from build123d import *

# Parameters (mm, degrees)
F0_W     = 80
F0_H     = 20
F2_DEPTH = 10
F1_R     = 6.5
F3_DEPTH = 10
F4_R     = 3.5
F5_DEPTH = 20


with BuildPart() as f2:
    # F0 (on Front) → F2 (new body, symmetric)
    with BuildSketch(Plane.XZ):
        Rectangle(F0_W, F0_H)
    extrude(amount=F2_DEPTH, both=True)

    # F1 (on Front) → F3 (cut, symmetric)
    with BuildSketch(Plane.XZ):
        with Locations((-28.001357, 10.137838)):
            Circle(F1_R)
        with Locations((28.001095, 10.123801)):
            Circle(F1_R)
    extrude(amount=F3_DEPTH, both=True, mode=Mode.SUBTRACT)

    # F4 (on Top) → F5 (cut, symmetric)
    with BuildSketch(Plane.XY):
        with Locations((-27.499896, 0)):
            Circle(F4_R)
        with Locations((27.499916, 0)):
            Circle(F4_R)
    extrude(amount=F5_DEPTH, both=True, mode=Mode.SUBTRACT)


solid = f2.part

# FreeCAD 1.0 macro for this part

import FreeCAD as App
import Part
import Sketcher


def add_polygon(sketch, points):
    """Adds a closed chain of lines whose ends are joined by coincident constraints."""
    first, n = sketch.GeometryCount, len(points)
    for a, b in zip(points, points[1:] + points[:1]):
        sketch.addGeometry(Part.LineSegment(App.Vector(*a, 0), App.Vector(*b, 0)), False)
    for i in range(n):
        sketch.addConstraint(Sketcher.Constraint("Coincident", first + i, 2, first + (i + 1) % n, 1))

doc = App.newDocument("Part")
params = doc.addObject("Spreadsheet::Sheet", "Params")
for row, (alias, value) in enumerate([
    ("sketch1_width", "80 mm"),
    ("sketch1_height", "20 mm"),
    ("pad1_length", "20 mm"),
    ("sketch2_diameter", "13 mm"),
    ("pocket1_length", "20 mm"),
    ("sketch3_diameter", "7 mm"),
    ("pocket2_length", "40 mm"),
], start=1):
    params.set(f"A{row}", alias)
    params.set(f"B{row}", "=" + value)
    params.setAlias(f"B{row}", alias)

body = doc.addObject("PartDesign::Body", "Body")

# Sketch on XZ plane
sketch1 = doc.addObject("Sketcher::SketchObject", "Sketch")
body.addObject(sketch1)
sketch1.AttachmentSupport = (doc.XZ_Plane, [""])
sketch1.MapMode = "FlatFace"
add_polygon(sketch1, [(-40, 10), (-40, -10), (40, -10), (40, 10)])  # lines 0-3
sketch1.addConstraint([
    Sketcher.Constraint("Vertical", 0),
    Sketcher.Constraint("Horizontal", 1),
    Sketcher.Constraint("Vertical", 2),
    Sketcher.Constraint("Horizontal", 3),
    Sketcher.Constraint("Symmetric", 0, 2, 2, 2, -1, 1),
    Sketcher.Constraint("DistanceX", 1, 1, 1, 2, 80.0),
    Sketcher.Constraint("DistanceY", 0, 2, 0, 1, 20.0),
])
sketch1.setExpression("Constraints[9]", "Params.sketch1_width")
sketch1.setExpression("Constraints[10]", "Params.sketch1_height")
pad1 = doc.addObject("PartDesign::Pad", "Pad")
body.addObject(pad1)
pad1.Profile = sketch1
pad1.setExpression("Length", "Params.pad1_length")
pad1.Midplane = True

# Sketch on XZ plane
sketch2 = doc.addObject("Sketcher::SketchObject", "Sketch001")
body.addObject(sketch2)
sketch2.AttachmentSupport = (doc.XZ_Plane, [""])
sketch2.MapMode = "FlatFace"
sketch2.addGeometry([
    Part.Circle(App.Vector(-28, 10, 0), App.Vector(0, 0, 1), 6),
    Part.Circle(App.Vector(28, 10, 0), App.Vector(0, 0, 1), 6),
], False)
sketch2.addConstraint([
    Sketcher.Constraint("Equal", 0, 1),
    Sketcher.Constraint("Diameter", 0, 13.0),
    Sketcher.Constraint("DistanceY", -1, 1, 1, 3, 10.123801),
    Sketcher.Constraint("DistanceX", 0, 3, 1, 3, 56.002452),
    Sketcher.Constraint("DistanceX", 0, 3, -1, 1, 28.001357),
    Sketcher.Constraint("DistanceY", -1, 1, 0, 3, 10.137838),
])
sketch2.setExpression("Constraints[1]", "Params.sketch2_diameter")
pocket1 = doc.addObject("PartDesign::Pocket", "Pocket")
body.addObject(pocket1)
pocket1.Profile = sketch2
pocket1.setExpression("Length", "Params.pocket1_length")
pocket1.Midplane = True

# Sketch on XY plane
sketch3 = doc.addObject("Sketcher::SketchObject", "Sketch002")
body.addObject(sketch3)
sketch3.AttachmentSupport = (doc.XY_Plane, [""])
sketch3.MapMode = "FlatFace"
sketch3.addGeometry([
    Part.Circle(App.Vector(-27.5, 0, 0), App.Vector(0, 0, 1), 3.5),
    Part.Circle(App.Vector(27.5, 0, 0), App.Vector(0, 0, 1), 3.5),
], False)
sketch3.addConstraint([
    Sketcher.Constraint("Equal", 0, 1),
    Sketcher.Constraint("PointOnObject", 0, 3, -1),
    Sketcher.Constraint("PointOnObject", 1, 3, -1),
    Sketcher.Constraint("Diameter", 0, 7.0),
    Sketcher.Constraint("DistanceX", 0, 3, -1, 1, 27.499896),
    Sketcher.Constraint("DistanceX", -1, 1, 1, 3, 27.499916),
])
sketch3.setExpression("Constraints[3]", "Params.sketch3_diameter")
pocket2 = doc.addObject("PartDesign::Pocket", "Pocket001")
body.addObject(pocket2)
pocket2.Profile = sketch3
pocket2.setExpression("Length", "Params.pocket2_length")
pocket2.Midplane = True

doc.recompute()
